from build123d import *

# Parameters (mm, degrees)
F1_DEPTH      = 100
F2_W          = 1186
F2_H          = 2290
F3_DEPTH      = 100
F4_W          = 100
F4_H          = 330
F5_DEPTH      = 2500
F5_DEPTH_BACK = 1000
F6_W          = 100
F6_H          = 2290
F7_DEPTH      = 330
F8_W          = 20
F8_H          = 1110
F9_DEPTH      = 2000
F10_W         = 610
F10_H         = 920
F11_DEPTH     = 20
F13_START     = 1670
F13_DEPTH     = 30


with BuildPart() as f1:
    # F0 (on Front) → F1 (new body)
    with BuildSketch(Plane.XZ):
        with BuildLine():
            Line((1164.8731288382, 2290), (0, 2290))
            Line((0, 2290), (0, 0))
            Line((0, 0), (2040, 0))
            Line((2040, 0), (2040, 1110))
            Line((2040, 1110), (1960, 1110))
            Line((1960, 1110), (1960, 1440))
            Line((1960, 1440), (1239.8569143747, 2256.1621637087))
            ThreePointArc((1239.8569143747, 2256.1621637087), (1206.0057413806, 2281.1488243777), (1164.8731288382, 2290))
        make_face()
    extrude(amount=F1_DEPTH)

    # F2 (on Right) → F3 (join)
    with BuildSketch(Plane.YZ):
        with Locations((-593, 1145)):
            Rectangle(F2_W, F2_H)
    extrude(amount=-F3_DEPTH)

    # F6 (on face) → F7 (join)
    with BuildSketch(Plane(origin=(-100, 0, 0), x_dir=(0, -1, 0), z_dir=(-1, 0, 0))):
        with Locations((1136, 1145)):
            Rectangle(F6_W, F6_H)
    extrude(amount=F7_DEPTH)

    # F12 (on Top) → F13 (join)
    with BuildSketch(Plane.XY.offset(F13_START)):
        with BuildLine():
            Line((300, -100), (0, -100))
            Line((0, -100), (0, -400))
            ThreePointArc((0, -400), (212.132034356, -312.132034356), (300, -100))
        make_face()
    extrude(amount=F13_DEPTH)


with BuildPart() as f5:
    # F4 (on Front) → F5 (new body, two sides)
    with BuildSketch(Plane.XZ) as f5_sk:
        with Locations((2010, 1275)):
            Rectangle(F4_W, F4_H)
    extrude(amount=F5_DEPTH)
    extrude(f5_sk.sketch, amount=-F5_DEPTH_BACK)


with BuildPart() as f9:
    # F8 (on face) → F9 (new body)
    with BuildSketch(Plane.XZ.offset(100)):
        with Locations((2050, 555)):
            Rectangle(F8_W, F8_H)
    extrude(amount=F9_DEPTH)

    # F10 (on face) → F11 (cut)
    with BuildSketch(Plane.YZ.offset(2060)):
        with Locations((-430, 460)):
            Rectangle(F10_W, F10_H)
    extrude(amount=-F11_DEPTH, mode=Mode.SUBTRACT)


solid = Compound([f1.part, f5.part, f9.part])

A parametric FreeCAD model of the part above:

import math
import FreeCAD as App
import Part
import Sketcher
Q = App.Units.Quantity

doc = App.newDocument("Part")
body = doc.addObject("PartDesign::Body", "Body")

sketch1 = body.newObject("Sketcher::SketchObject", "Sketch")
sketch1.AttachmentSupport = (doc.getObject("XZ_Plane"), [""])
sketch1.MapMode = "FlatFace"
sketch1.addGeometry([
    Part.LineSegment(App.Vector(1165, 2290, 0), App.Vector(0, 2290, 0)),
    Part.LineSegment(App.Vector(0, 2290, 0), App.Vector(0, 0, 0)),
    Part.LineSegment(App.Vector(0, 0, 0), App.Vector(2040, 0, 0)),
    Part.LineSegment(App.Vector(2040, 0, 0), App.Vector(2040, 1110, 0)),
    Part.LineSegment(App.Vector(2040, 1110, 0), App.Vector(1960, 1110, 0)),
    Part.LineSegment(App.Vector(1960, 1110, 0), App.Vector(1960, 1440, 0)),
    Part.LineSegment(App.Vector(1960, 1440, 0), App.Vector(1240, 2256, 0)),
    Part.ArcOfCircle(Part.Circle(App.Vector(1165, 2190, 0), App.Vector(0, 0, 1), 100), math.radians(41), math.radians(90)),
], False)
sketch1.addConstraint([
    Sketcher.Constraint("Coincident", 0, 2, 1, 1),
    Sketcher.Constraint("Coincident", 1, 2, 2, 1),
    Sketcher.Constraint("Coincident", 2, 2, 3, 1),
    Sketcher.Constraint("Coincident", 3, 2, 4, 1),
    Sketcher.Constraint("Coincident", 4, 2, 5, 1),
    Sketcher.Constraint("Coincident", 5, 2, 6, 1),
    Sketcher.Constraint("Tangent", 6, 2, 7, 1),
    Sketcher.Constraint("Tangent", 7, 2, 0, 1),
    Sketcher.Constraint("Horizontal", 0),
    Sketcher.Constraint("Vertical", 1),
    Sketcher.Constraint("Horizontal", 2),
    Sketcher.Constraint("Vertical", 3),
    Sketcher.Constraint("Horizontal", 4),
    Sketcher.Constraint("Vertical", 5),
    Sketcher.Constraint("Coincident", 1, 2, -1, 1),
    Sketcher.Constraint("Radius", 7, Q("100 mm")),
    Sketcher.Constraint("DistanceX", 2, 1, 2, 2, Q("2040 mm")),
    Sketcher.Constraint("DistanceX", 4, 2, 4, 1, Q("80 mm")),
    Sketcher.Constraint("DistanceY", 1, 2, 1, 1, Q("2290 mm")),
    Sketcher.Constraint("DistanceY", 3, 1, 3, 2, Q("1110 mm")),
    Sketcher.Constraint("DistanceY", 5, 1, 5, 2, Q("330 mm")),
    Sketcher.Constraint("DistanceX", 0, 2, 0, 1, Q("1164.873129 mm")),
])
pad1 = body.newObject("PartDesign::Pad", "Pad")
pad1.Profile = sketch1
pad1.Length = 100

sketch2 = body.newObject("Sketcher::SketchObject", "Sketch001")
sketch2.AttachmentSupport = (doc.getObject("YZ_Plane"), [""])
sketch2.MapMode = "FlatFace"
sketch2.addGeometry([
    Part.LineSegment(App.Vector(-1186, 2290, 0), App.Vector(-1186, 0, 0)),
    Part.LineSegment(App.Vector(-1186, 0, 0), App.Vector(0, 0, 0)),
    Part.LineSegment(App.Vector(0, 0, 0), App.Vector(0, 2290, 0)),
    Part.LineSegment(App.Vector(0, 2290, 0), App.Vector(-1186, 2290, 0)),
], False)
sketch2.addConstraint([
    Sketcher.Constraint("Coincident", 0, 2, 1, 1),
    Sketcher.Constraint("Coincident", 1, 2, 2, 1),
    Sketcher.Constraint("Coincident", 2, 2, 3, 1),
    Sketcher.Constraint("Coincident", 3, 2, 0, 1),
    Sketcher.Constraint("Vertical", 0),
    Sketcher.Constraint("Horizontal", 1),
    Sketcher.Constraint("Vertical", 2),
    Sketcher.Constraint("Horizontal", 3),
    Sketcher.Constraint("Coincident", 1, 2, -1, 1),
    Sketcher.Constraint("DistanceX", 1, 1, 1, 2, Q("1186 mm")),
    Sketcher.Constraint("DistanceY", 0, 2, 0, 1, Q("2290 mm")),
])
pad2 = body.newObject("PartDesign::Pad", "Pad001")
pad2.Profile = sketch2
pad2.Length = 100
pad2.Reversed = True

sketch3 = body.newObject("Sketcher::SketchObject", "Sketch002")
sketch3.AttachmentSupport = (doc.getObject("YZ_Plane"), [""])
sketch3.MapMode = "FlatFace"
sketch3.AttachmentOffset = App.Placement(App.Vector(0, 0, -100), App.Rotation())
sketch3.addGeometry([
    Part.LineSegment(App.Vector(-1086, 2290, 0), App.Vector(-1086, 0, 0)),
    Part.LineSegment(App.Vector(-1086, 0, 0), App.Vector(-1186, 0, 0)),
    Part.LineSegment(App.Vector(-1186, 0, 0), App.Vector(-1186, 2290, 0)),
    Part.LineSegment(App.Vector(-1186, 2290, 0), App.Vector(-1086, 2290, 0)),
], False)
sketch3.addConstraint([
    Sketcher.Constraint("Coincident", 0, 2, 1, 1),
    Sketcher.Constraint("Coincident", 1, 2, 2, 1),
    Sketcher.Constraint("Coincident", 2, 2, 3, 1),
    Sketcher.Constraint("Coincident", 3, 2, 0, 1),
    Sketcher.Constraint("Vertical", 0),
    Sketcher.Constraint("Horizontal", 1),
    Sketcher.Constraint("Vertical", 2),
    Sketcher.Constraint("Horizontal", 3),
    Sketcher.Constraint("PointOnObject", 0, 2, -1),
    Sketcher.Constraint("DistanceX", 1, 2, 1, 1, Q("100 mm")),
    Sketcher.Constraint("DistanceY", 0, 2, 0, 1, Q("2290 mm")),
    Sketcher.Constraint("DistanceX", 0, 2, -1, 1, Q("1086 mm")),
])
pad3 = body.newObject("PartDesign::Pad", "Pad002")
pad3.Profile = sketch3
pad3.Length = 330
pad3.Reversed = True

sketch4 = body.newObject("Sketcher::SketchObject", "Sketch003")
sketch4.AttachmentSupport = (doc.getObject("XY_Plane"), [""])
sketch4.MapMode = "FlatFace"
sketch4.AttachmentOffset = App.Placement(App.Vector(0, 0, 1670), App.Rotation())
sketch4.addGeometry([
    Part.LineSegment(App.Vector(300, -100, 0), App.Vector(0, -100, 0)),
    Part.LineSegment(App.Vector(0, -100, 0), App.Vector(0, -400, 0)),
    Part.ArcOfCircle(Part.Circle(App.Vector(0, -100, 0), App.Vector(0, 0, 1), 300), math.radians(-90), math.radians(0)),
], False)
sketch4.addConstraint([
    Sketcher.Constraint("Coincident", 0, 2, 1, 1),
    Sketcher.Constraint("Coincident", 1, 2, 2, 1),
    Sketcher.Constraint("Coincident", 2, 2, 0, 1),
    Sketcher.Constraint("Horizontal", 0),
    Sketcher.Constraint("Vertical", 1),
    Sketcher.Constraint("Coincident", 0, 2, 2, 3),
    Sketcher.Constraint("PointOnObject", 2, 3, -2),
    Sketcher.Constraint("Radius", 2, Q("300 mm")),
    Sketcher.Constraint("DistanceY", 2, 3, -1, 1, Q("100 mm")),
])
pad4 = body.newObject("PartDesign::Pad", "Pad003")
pad4.Profile = sketch4
pad4.Length = 30
body2 = doc.addObject("PartDesign::Body", "Body001")

sketch5 = body2.newObject("Sketcher::SketchObject", "Sketch004")
sketch5.AttachmentSupport = (doc.getObject("XZ_Plane001"), [""])
sketch5.MapMode = "FlatFace"
sketch5.addGeometry([
    Part.LineSegment(App.Vector(1960, 1440, 0), App.Vector(1960, 1110, 0)),
    Part.LineSegment(App.Vector(1960, 1110, 0), App.Vector(2060, 1110, 0)),
    Part.LineSegment(App.Vector(2060, 1110, 0), App.Vector(2060, 1440, 0)),
    Part.LineSegment(App.Vector(2060, 1440, 0), App.Vector(1960, 1440, 0)),
], False)
sketch5.addConstraint([
    Sketcher.Constraint("Coincident", 0, 2, 1, 1),
    Sketcher.Constraint("Coincident", 1, 2, 2, 1),
    Sketcher.Constraint("Coincident", 2, 2, 3, 1),
    Sketcher.Constraint("Coincident", 3, 2, 0, 1),
    Sketcher.Constraint("Vertical", 0),
    Sketcher.Constraint("Horizontal", 1),
    Sketcher.Constraint("Vertical", 2),
    Sketcher.Constraint("Horizontal", 3),
    Sketcher.Constraint("DistanceX", 1, 1, 1, 2, Q("100 mm")),
    Sketcher.Constraint("DistanceY", 0, 2, 0, 1, Q("330 mm")),
    Sketcher.Constraint("DistanceX", -1, 1, 0, 2, Q("1960 mm")),
    Sketcher.Constraint("DistanceY", -1, 1, 0, 2, Q("1110 mm")),
])
pad5 = body2.newObject("PartDesign::Pad", "Pad004")
pad5.Profile = sketch5
pad5.Type = "TwoLengths"
pad5.Length = 2500
pad5.Length2 = 1000
body3 = doc.addObject("PartDesign::Body", "Body002")

sketch6 = body3.newObject("Sketcher::SketchObject", "Sketch005")
sketch6.AttachmentSupport = (doc.getObject("XZ_Plane002"), [""])
sketch6.MapMode = "FlatFace"
sketch6.AttachmentOffset = App.Placement(App.Vector(0, 0, 100), App.Rotation())
sketch6.addGeometry([
    Part.LineSegment(App.Vector(2040, 1110, 0), App.Vector(2040, 0, 0)),
    Part.LineSegment(App.Vector(2040, 0, 0), App.Vector(2060, 0, 0)),
    Part.LineSegment(App.Vector(2060, 0, 0), App.Vector(2060, 1110, 0)),
    Part.LineSegment(App.Vector(2060, 1110, 0), App.Vector(2040, 1110, 0)),
], False)
sketch6.addConstraint([
    Sketcher.Constraint("Coincident", 0, 2, 1, 1),
    Sketcher.Constraint("Coincident", 1, 2, 2, 1),
    Sketcher.Constraint("Coincident", 2, 2, 3, 1),
    Sketcher.Constraint("Coincident", 3, 2, 0, 1),
    Sketcher.Constraint("Vertical", 0),
    Sketcher.Constraint("Horizontal", 1),
    Sketcher.Constraint("Vertical", 2),
    Sketcher.Constraint("Horizontal", 3),
    Sketcher.Constraint("PointOnObject", 0, 2, -1),
    Sketcher.Constraint("DistanceX", 1, 1, 1, 2, Q("20 mm")),
    Sketcher.Constraint("DistanceY", 0, 2, 0, 1, Q("1110 mm")),
    Sketcher.Constraint("DistanceX", -1, 1, 0, 2, Q("2040 mm")),
])
pad6 = body3.newObject("PartDesign::Pad", "Pad005")
pad6.Profile = sketch6
pad6.Length = 2000

sketch7 = body3.newObject("Sketcher::SketchObject", "Sketch006")
sketch7.AttachmentSupport = (doc.getObject("YZ_Plane002"), [""])
sketch7.MapMode = "FlatFace"
sketch7.AttachmentOffset = App.Placement(App.Vector(0, 0, 2060), App.Rotation())
sketch7.addGeometry([
    Part.LineSegment(App.Vector(-735, 920, 0), App.Vector(-735, 0, 0)),
    Part.LineSegment(App.Vector(-735, 0, 0), App.Vector(-125, 0, 0)),
    Part.LineSegment(App.Vector(-125, 0, 0), App.Vector(-125, 920, 0)),
    Part.LineSegment(App.Vector(-125, 920, 0), App.Vector(-735, 920, 0)),
], False)
sketch7.addConstraint([
    Sketcher.Constraint("Coincident", 0, 2, 1, 1),
    Sketcher.Constraint("Coincident", 1, 2, 2, 1),
    Sketcher.Constraint("Coincident", 2, 2, 3, 1),
    Sketcher.Constraint("Coincident", 3, 2, 0, 1),
    Sketcher.Constraint("Vertical", 0),
    Sketcher.Constraint("Horizontal", 1),
    Sketcher.Constraint("Vertical", 2),
    Sketcher.Constraint("Horizontal", 3),
    Sketcher.Constraint("PointOnObject", 0, 2, -1),
    Sketcher.Constraint("DistanceX", 1, 1, 1, 2, Q("610 mm")),
    Sketcher.Constraint("DistanceY", 0, 2, 0, 1, Q("920 mm")),
    Sketcher.Constraint("DistanceX", 0, 2, -1, 1, Q("735 mm")),
])
pocket1 = body3.newObject("PartDesign::Pocket", "Pocket")
pocket1.Profile = sketch7
pocket1.Length = 20

doc.recompute()
